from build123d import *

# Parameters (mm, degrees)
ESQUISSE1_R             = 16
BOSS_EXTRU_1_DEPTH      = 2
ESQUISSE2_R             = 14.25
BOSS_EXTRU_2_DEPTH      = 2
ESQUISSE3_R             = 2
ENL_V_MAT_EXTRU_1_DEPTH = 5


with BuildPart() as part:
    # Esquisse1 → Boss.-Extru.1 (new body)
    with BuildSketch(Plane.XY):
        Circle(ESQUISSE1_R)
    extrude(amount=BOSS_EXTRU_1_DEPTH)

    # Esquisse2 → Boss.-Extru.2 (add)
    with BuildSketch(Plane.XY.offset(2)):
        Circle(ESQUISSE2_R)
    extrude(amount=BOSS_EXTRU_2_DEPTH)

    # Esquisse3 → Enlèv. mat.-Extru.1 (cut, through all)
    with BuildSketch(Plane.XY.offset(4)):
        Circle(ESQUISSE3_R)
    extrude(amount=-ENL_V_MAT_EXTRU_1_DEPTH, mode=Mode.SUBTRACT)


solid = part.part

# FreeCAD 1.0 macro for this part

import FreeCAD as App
import Part
import Sketcher

V = App.Vector

doc = App.newDocument("Part")
body = doc.addObject("PartDesign::Body", "Body")

# Sketch on XY plane
sketch1 = body.newObject("Sketcher::SketchObject", "Sketch")
sketch1.AttachmentSupport = (doc.getObject("XY_Plane"), [""])
sketch1.MapMode = "FlatFace"
sketch1.addGeometry(Part.Circle(V(0, 0, 0), V(0, 0, 1), 16), False)
sketch1.addConstraint([
    Sketcher.Constraint("Coincident", 0, 3, -1, 1),
    Sketcher.Constraint("Diameter", 0, 32.0),
])
pad1 = body.newObject("PartDesign::Pad", "Pad")
pad1.Profile = sketch1
pad1.Length = 2

# Sketch on XY plane
sketch2 = body.newObject("Sketcher::SketchObject", "Sketch001")
sketch2.AttachmentSupport = (doc.getObject("XY_Plane"), [""])
sketch2.MapMode = "FlatFace"
sketch2.AttachmentOffset = App.Placement(V(0, 0, 2), App.Rotation())
sketch2.addGeometry(Part.Circle(V(0, 0, 0), V(0, 0, 1), 14), False)
sketch2.addConstraint([
    Sketcher.Constraint("Coincident", 0, 3, -1, 1),
    Sketcher.Constraint("Diameter", 0, 28.5),
])
pad2 = body.newObject("PartDesign::Pad", "Pad001")
pad2.Profile = sketch2
pad2.Length = 2

# Sketch on XY plane
sketch3 = body.newObject("Sketcher::SketchObject", "Sketch002")
sketch3.AttachmentSupport = (doc.getObject("XY_Plane"), [""])
sketch3.MapMode = "FlatFace"
sketch3.AttachmentOffset = App.Placement(V(0, 0, 4), App.Rotation())
sketch3.addGeometry(Part.Circle(V(0, 0, 0), V(0, 0, 1), 2), False)
sketch3.addConstraint([
    Sketcher.Constraint("Coincident", 0, 3, -1, 1),
    Sketcher.Constraint("Diameter", 0, 4.0),
])
pocket1 = body.newObject("PartDesign::Pocket", "Pocket")
pocket1.Profile = sketch3
pocket1.Type = "ThroughAll"

doc.recompute()
